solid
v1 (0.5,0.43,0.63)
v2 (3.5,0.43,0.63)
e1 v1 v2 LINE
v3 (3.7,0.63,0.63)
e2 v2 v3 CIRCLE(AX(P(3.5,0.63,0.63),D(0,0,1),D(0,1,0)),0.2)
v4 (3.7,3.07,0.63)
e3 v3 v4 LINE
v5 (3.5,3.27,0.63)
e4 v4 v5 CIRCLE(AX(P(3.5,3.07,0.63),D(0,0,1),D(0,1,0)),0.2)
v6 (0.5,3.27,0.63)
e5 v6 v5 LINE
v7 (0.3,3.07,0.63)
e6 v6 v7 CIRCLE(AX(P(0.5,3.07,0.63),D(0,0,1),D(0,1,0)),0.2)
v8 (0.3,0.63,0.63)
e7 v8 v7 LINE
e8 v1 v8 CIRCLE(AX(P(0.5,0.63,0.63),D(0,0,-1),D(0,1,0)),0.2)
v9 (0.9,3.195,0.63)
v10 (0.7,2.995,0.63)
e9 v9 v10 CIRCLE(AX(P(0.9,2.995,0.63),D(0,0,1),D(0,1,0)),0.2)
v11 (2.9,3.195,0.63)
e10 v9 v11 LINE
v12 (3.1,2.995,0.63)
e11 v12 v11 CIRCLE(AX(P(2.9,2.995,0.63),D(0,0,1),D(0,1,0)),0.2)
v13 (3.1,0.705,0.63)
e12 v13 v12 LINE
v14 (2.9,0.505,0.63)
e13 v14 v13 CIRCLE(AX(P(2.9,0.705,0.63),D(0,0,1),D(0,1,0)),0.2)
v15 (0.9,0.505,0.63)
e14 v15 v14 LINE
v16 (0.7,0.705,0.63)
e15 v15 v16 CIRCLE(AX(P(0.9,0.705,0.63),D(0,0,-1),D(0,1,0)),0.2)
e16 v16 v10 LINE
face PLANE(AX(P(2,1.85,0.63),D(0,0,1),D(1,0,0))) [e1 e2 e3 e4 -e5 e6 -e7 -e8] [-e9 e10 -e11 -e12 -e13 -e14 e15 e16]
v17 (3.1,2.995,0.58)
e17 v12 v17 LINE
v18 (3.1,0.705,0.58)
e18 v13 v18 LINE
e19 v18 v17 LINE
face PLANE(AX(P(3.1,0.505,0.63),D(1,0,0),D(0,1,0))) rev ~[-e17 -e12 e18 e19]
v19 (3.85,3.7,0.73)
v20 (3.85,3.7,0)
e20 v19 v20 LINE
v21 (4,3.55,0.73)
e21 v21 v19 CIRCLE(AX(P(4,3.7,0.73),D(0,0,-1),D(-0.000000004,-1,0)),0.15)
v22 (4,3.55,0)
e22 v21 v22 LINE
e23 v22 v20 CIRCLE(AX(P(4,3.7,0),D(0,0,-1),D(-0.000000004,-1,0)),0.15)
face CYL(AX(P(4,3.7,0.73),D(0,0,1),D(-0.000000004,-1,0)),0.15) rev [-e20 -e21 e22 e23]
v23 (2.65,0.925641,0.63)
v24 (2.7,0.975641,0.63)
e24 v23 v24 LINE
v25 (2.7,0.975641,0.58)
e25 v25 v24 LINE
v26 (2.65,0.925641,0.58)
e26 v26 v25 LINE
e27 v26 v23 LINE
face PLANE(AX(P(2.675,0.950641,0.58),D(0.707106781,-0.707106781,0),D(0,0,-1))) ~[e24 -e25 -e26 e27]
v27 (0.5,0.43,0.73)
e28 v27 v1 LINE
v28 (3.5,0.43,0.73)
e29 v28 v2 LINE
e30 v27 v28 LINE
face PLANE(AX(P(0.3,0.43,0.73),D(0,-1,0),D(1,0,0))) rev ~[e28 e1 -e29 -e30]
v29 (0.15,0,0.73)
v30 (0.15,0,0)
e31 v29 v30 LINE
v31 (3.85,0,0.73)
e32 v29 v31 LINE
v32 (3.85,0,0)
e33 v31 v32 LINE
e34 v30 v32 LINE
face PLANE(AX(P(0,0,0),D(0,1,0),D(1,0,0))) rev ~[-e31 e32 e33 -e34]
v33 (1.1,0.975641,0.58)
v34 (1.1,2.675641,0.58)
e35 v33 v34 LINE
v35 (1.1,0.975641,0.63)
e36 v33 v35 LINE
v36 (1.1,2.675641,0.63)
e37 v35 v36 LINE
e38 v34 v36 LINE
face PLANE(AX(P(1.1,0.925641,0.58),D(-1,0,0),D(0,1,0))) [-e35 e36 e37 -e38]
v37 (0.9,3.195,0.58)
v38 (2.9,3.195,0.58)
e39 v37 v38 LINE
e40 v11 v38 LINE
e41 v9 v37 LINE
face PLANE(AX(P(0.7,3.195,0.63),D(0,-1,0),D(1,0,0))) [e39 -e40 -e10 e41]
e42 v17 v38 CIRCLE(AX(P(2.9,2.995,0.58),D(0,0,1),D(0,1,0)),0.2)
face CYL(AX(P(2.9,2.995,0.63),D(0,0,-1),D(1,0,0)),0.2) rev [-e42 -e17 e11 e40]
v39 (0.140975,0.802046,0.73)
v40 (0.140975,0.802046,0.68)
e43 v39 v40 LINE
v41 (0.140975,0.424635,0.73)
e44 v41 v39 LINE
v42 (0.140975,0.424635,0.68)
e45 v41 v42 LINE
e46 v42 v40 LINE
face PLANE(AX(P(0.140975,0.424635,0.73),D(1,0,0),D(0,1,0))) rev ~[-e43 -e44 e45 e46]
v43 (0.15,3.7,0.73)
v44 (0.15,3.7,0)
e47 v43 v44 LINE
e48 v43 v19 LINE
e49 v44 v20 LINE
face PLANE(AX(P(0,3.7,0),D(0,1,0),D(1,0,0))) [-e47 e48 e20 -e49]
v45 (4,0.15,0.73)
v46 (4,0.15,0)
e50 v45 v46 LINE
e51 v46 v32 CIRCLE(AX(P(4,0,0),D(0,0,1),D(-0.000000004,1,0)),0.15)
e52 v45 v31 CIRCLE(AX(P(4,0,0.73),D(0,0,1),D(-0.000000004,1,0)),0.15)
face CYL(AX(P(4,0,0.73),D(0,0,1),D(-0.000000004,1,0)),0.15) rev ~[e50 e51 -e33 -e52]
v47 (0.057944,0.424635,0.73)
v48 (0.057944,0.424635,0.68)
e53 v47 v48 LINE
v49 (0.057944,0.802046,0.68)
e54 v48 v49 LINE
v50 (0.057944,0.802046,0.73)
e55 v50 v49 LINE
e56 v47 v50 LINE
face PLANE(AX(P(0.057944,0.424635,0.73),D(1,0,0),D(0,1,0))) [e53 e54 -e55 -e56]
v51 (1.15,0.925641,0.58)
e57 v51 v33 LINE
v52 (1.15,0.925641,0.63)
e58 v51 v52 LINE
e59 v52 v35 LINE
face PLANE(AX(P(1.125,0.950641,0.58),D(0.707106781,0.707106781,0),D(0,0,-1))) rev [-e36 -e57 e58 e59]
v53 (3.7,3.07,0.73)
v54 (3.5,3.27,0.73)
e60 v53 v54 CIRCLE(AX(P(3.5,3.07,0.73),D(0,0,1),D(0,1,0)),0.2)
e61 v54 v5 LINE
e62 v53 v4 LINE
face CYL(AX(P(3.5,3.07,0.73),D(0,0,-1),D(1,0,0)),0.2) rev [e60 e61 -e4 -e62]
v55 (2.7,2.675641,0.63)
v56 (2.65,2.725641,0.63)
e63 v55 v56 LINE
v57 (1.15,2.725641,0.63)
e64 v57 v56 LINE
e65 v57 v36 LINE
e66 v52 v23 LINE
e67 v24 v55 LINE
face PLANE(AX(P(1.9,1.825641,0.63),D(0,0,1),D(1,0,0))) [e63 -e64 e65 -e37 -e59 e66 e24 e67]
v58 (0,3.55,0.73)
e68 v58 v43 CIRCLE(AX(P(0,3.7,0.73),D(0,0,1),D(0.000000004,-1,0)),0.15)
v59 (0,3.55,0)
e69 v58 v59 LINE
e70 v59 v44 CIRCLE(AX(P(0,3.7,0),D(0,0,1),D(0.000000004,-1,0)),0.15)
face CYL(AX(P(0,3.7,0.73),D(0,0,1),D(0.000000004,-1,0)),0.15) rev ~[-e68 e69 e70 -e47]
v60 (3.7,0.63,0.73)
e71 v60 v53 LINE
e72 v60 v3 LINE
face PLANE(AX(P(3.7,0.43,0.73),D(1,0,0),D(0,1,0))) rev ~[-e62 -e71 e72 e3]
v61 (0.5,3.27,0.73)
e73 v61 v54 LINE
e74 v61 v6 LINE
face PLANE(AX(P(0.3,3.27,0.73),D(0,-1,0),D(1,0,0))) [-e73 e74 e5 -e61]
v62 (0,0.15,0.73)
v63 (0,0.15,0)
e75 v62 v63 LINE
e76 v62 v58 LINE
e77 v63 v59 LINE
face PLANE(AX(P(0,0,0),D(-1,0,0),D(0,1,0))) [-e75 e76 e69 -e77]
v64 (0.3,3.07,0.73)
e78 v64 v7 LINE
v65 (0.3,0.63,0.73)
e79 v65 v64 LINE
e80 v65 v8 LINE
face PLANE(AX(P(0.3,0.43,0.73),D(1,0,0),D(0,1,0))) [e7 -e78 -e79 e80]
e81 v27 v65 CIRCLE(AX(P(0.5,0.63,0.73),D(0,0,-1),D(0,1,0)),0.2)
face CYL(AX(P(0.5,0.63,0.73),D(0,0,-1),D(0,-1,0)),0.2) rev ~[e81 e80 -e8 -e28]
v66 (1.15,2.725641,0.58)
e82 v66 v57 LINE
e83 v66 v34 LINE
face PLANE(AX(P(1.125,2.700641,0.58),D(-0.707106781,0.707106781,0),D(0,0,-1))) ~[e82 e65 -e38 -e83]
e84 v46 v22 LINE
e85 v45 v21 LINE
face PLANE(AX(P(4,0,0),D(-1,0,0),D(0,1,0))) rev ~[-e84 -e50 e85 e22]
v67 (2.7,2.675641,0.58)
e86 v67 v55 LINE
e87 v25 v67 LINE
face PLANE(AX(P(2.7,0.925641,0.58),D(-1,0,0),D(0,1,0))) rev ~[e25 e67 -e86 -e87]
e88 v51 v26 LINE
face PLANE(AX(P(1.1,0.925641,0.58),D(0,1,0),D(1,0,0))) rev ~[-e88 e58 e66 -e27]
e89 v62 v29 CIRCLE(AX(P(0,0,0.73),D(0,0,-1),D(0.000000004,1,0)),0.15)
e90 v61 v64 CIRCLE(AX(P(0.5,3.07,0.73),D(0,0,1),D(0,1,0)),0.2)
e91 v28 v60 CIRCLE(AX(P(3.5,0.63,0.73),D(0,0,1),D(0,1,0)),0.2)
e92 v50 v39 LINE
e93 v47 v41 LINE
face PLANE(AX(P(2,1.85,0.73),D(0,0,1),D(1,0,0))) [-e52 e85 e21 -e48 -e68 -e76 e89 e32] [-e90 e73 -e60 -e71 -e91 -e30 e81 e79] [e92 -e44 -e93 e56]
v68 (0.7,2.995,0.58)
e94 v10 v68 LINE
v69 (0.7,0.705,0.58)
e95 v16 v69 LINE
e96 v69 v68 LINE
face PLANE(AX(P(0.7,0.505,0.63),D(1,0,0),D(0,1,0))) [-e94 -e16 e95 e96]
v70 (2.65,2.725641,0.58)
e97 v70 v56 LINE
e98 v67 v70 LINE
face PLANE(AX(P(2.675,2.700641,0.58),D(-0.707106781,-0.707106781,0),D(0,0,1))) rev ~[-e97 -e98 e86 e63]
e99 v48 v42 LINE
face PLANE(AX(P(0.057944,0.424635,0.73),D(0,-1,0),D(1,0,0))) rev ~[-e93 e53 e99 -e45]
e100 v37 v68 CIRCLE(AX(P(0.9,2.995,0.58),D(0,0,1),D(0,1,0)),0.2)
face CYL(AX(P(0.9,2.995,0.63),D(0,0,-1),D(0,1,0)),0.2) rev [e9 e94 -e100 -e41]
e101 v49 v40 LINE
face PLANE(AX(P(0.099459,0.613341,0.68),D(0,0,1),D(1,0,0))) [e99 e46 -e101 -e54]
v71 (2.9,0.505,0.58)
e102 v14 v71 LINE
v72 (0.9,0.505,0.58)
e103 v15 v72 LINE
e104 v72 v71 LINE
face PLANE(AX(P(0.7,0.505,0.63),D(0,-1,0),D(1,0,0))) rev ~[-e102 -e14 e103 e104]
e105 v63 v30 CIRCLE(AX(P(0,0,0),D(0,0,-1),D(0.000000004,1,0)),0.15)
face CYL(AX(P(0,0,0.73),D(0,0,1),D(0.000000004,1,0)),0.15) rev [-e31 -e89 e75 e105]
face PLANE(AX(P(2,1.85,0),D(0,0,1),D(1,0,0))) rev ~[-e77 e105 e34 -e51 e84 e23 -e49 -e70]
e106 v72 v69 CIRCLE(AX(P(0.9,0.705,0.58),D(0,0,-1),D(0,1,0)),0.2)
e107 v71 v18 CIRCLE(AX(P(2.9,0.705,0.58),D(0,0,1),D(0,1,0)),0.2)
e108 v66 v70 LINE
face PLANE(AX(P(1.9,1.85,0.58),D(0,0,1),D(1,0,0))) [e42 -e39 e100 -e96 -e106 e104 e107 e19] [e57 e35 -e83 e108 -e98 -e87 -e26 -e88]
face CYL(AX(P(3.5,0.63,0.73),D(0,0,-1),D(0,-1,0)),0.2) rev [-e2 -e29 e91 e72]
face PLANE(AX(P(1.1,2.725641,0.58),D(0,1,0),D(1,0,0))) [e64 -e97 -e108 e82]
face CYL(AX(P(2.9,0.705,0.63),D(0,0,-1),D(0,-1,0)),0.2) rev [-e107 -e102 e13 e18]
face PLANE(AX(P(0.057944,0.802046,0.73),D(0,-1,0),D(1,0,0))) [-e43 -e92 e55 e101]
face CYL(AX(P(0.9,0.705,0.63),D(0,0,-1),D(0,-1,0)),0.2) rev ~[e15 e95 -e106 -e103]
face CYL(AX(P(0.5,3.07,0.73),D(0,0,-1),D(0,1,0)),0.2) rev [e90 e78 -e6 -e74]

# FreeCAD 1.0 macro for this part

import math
import FreeCAD as App
import Part
import Sketcher
Q = App.Units.Quantity


def edges_at(feature, points):
    """Names of the edges that pass closest to the given points."""
    edges = feature.Shape.Edges
    near = lambda p: min(range(len(edges)), key=lambda i: edges[i].distToShape(Part.Vertex(*p))[0])
    return sorted({f"Edge{near(p) + 1}" for p in points})

doc = App.newDocument("Part")
body = doc.addObject("PartDesign::Body", "Body")

# Sketch on XY plane
sketch1 = body.newObject("Sketcher::SketchObject", "Sketch")
sketch1.AttachmentSupport = (doc.getObject("XY_Plane"), [""])
sketch1.MapMode = "FlatFace"
sketch1.addGeometry([
    Part.LineSegment(App.Vector(0, 3.7, 0), App.Vector(0, 0, 0)),
    Part.LineSegment(App.Vector(0, 0, 0), App.Vector(4, 0, 0)),
    Part.LineSegment(App.Vector(4, 0, 0), App.Vector(4, 3.7, 0)),
    Part.LineSegment(App.Vector(4, 3.7, 0), App.Vector(0, 3.7, 0)),
], False)
sketch1.addConstraint([
    Sketcher.Constraint("Coincident", 0, 2, 1, 1),
    Sketcher.Constraint("Coincident", 1, 2, 2, 1),
    Sketcher.Constraint("Coincident", 2, 2, 3, 1),
    Sketcher.Constraint("Coincident", 3, 2, 0, 1),
    Sketcher.Constraint("Vertical", 0),
    Sketcher.Constraint("Horizontal", 1),
    Sketcher.Constraint("Vertical", 2),
    Sketcher.Constraint("Horizontal", 3),
    Sketcher.Constraint("Coincident", 0, 2, -1, 1),
    Sketcher.Constraint("DistanceX", 1, 1, 1, 2, Q("4 mm")),
    Sketcher.Constraint("DistanceY", 0, 2, 0, 1, Q("3.7 mm")),
])
pad1 = body.newObject("PartDesign::Pad", "Pad")
pad1.Profile = sketch1
pad1.Length = 0.73

# Sketch on XY plane
sketch2 = body.newObject("Sketcher::SketchObject", "Sketch001")
sketch2.AttachmentSupport = (doc.getObject("XY_Plane"), [""])
sketch2.MapMode = "FlatFace"
sketch2.AttachmentOffset = App.Placement(App.Vector(0, 0, 0.73), App.Rotation())
sketch2.addGeometry([
    Part.LineSegment(App.Vector(0.15, 3.7, 0), App.Vector(0, 3.7, 0)),
    Part.LineSegment(App.Vector(0, 3.7, 0), App.Vector(0, 3.55, 0)),
    Part.ArcOfCircle(Part.Circle(App.Vector(0, 3.7, 0), App.Vector(0, 0, 1), 0.15), math.radians(-90), math.radians(0)),
], False)
sketch2.addConstraint([
    Sketcher.Constraint("Coincident", 0, 2, 1, 1),
    Sketcher.Constraint("Coincident", 1, 2, 2, 1),
    Sketcher.Constraint("Coincident", 2, 2, 0, 1),
    Sketcher.Constraint("Horizontal", 0),
    Sketcher.Constraint("Vertical", 1),
    Sketcher.Constraint("Coincident", 0, 2, 2, 3),
    Sketcher.Constraint("PointOnObject", 2, 3, -2),
    Sketcher.Constraint("Radius", 2, Q("0.15 mm")),
    Sketcher.Constraint("DistanceY", -1, 1, 2, 3, Q("3.7 mm")),
])
pocket1 = body.newObject("PartDesign::Pocket", "Pocket")
pocket1.Profile = sketch2
pocket1.Length = 0.73
doc.recompute()

datumplane = body.newObject("PartDesign::Plane", "DatumPlane")
datumplane.AttachmentSupport = (doc.getObject("XZ_Plane"), [""])
datumplane.MapMode = "FlatFace"
datumplane.AttachmentOffset = App.Placement(App.Vector(0, 0, -1.85), App.Rotation())
mirrored = body.newObject("PartDesign::Mirrored", "Mirrored")
mirrored.Originals = [pocket1]
mirrored.MirrorPlane = (datumplane, [""])
body.Tip = mirrored
doc.recompute()

datumplane2 = body.newObject("PartDesign::Plane", "DatumPlane001")
datumplane2.AttachmentSupport = (doc.getObject("YZ_Plane"), [""])
datumplane2.MapMode = "FlatFace"
datumplane2.AttachmentOffset = App.Placement(App.Vector(0, 0, 2), App.Rotation())
mirrored2 = body.newObject("PartDesign::Mirrored", "Mirrored001")
mirrored2.Originals = [pocket1]
mirrored2.MirrorPlane = (datumplane2, [""])
body.Tip = mirrored2

# Sketch on XY plane
sketch3 = body.newObject("Sketcher::SketchObject", "Sketch002")
sketch3.AttachmentSupport = (doc.getObject("XY_Plane"), [""])
sketch3.MapMode = "FlatFace"
sketch3.AttachmentOffset = App.Placement(App.Vector(0, 0, 0.73), App.Rotation())
sketch3.addGeometry([
    Part.LineSegment(App.Vector(3.85, 0, 0), App.Vector(4, 0, 0)),
    Part.LineSegment(App.Vector(4, 0, 0), App.Vector(4, 0.15, 0)),
    Part.ArcOfCircle(Part.Circle(App.Vector(4, 0, 0), App.Vector(0, 0, 1), 0.15), math.radians(90), math.radians(180)),
], False)
sketch3.addConstraint([
    Sketcher.Constraint("Coincident", 0, 2, 1, 1),
    Sketcher.Constraint("Coincident", 1, 2, 2, 1),
    Sketcher.Constraint("Coincident", 2, 2, 0, 1),
    Sketcher.Constraint("Horizontal", 0),
    Sketcher.Constraint("Vertical", 1),
    Sketcher.Constraint("Coincident", 0, 2, 2, 3),
    Sketcher.Constraint("PointOnObject", 2, 3, -1),
    Sketcher.Constraint("Radius", 2, Q("0.15 mm")),
    Sketcher.Constraint("DistanceX", -1, 1, 2, 3, Q("4 mm")),
])
pocket2 = body.newObject("PartDesign::Pocket", "Pocket001")
pocket2.Profile = sketch3
pocket2.Length = 0.73

# Sketch on XY plane
sketch4 = body.newObject("Sketcher::SketchObject", "Sketch003")
sketch4.AttachmentSupport = (doc.getObject("XY_Plane"), [""])
sketch4.MapMode = "FlatFace"
sketch4.AttachmentOffset = App.Placement(App.Vector(0, 0, 0.73), App.Rotation())
sketch4.addGeometry([
    Part.LineSegment(App.Vector(0.3, 3.3, 0), App.Vector(0.3, 0.4, 0)),
    Part.LineSegment(App.Vector(0.3, 0.4, 0), App.Vector(3.7, 0.4, 0)),
    Part.LineSegment(App.Vector(3.7, 0.4, 0), App.Vector(3.7, 3.3, 0)),
    Part.LineSegment(App.Vector(3.7, 3.3, 0), App.Vector(0.3, 3.3, 0)),
], False)
sketch4.addConstraint([
    Sketcher.Constraint("Coincident", 0, 2, 1, 1),
    Sketcher.Constraint("Coincident", 1, 2, 2, 1),
    Sketcher.Constraint("Coincident", 2, 2, 3, 1),
    Sketcher.Constraint("Coincident", 3, 2, 0, 1),
    Sketcher.Constraint("Vertical", 0),
    Sketcher.Constraint("Horizontal", 1),
    Sketcher.Constraint("Vertical", 2),
    Sketcher.Constraint("Horizontal", 3),
    Sketcher.Constraint("DistanceX", 1, 1, 1, 2, Q("3.4 mm")),
    Sketcher.Constraint("DistanceY", 0, 2, 0, 1, Q("2.84 mm")),
    Sketcher.Constraint("DistanceX", -1, 1, 0, 2, Q("0.3 mm")),
    Sketcher.Constraint("DistanceY", -1, 1, 0, 2, Q("0.43 mm")),
])
pocket3 = body.newObject("PartDesign::Pocket", "Pocket002")
pocket3.Profile = sketch4
pocket3.Length = 0.1
doc.recompute()

fillet = body.newObject("PartDesign::Fillet", "Fillet")
fillet.Base = (pocket3, edges_at(pocket3, [
    (0.3, 0.43, 0.68),
    (0.3, 3.27, 0.68),
    (3.7, 3.27, 0.68),
    (3.7, 0.43, 0.68),
]))
fillet.Radius = 0.2

# Sketch on XY plane
sketch5 = body.newObject("Sketcher::SketchObject", "Sketch004")
sketch5.AttachmentSupport = (doc.getObject("XY_Plane"), [""])
sketch5.MapMode = "FlatFace"
sketch5.AttachmentOffset = App.Placement(App.Vector(0, 0, 0.73), App.Rotation())
sketch5.addGeometry([
    Part.LineSegment(App.Vector(0.06, 0.8, 0), App.Vector(0.06, 0.42, 0)),
    Part.LineSegment(App.Vector(0.06, 0.42, 0), App.Vector(0.14, 0.42, 0)),
    Part.LineSegment(App.Vector(0.14, 0.42, 0), App.Vector(0.14, 0.8, 0)),
    Part.LineSegment(App.Vector(0.14, 0.8, 0), App.Vector(0.06, 0.8, 0)),
], False)
sketch5.addConstraint([
    Sketcher.Constraint("Coincident", 0, 2, 1, 1),
    Sketcher.Constraint("Coincident", 1, 2, 2, 1),
    Sketcher.Constraint("Coincident", 2, 2, 3, 1),
    Sketcher.Constraint("Coincident", 3, 2, 0, 1),
    Sketcher.Constraint("Vertical", 0),
    Sketcher.Constraint("Horizontal", 1),
    Sketcher.Constraint("Vertical", 2),
    Sketcher.Constraint("Horizontal", 3),
    Sketcher.Constraint("DistanceX", 1, 1, 1, 2, Q("0.08303 mm")),
    Sketcher.Constraint("DistanceY", 0, 2, 0, 1, Q("0.377411 mm")),
    Sketcher.Constraint("DistanceX", -1, 1, 0, 2, Q("0.057944 mm")),
    Sketcher.Constraint("DistanceY", -1, 1, 0, 2, Q("0.424635 mm")),
])
pocket4 = body.newObject("PartDesign::Pocket", "Pocket003")
pocket4.Profile = sketch5
pocket4.Length = 0.05

# Sketch on XY plane
sketch6 = body.newObject("Sketcher::SketchObject", "Sketch005")
sketch6.AttachmentSupport = (doc.getObject("XY_Plane"), [""])
sketch6.MapMode = "FlatFace"
sketch6.AttachmentOffset = App.Placement(App.Vector(0, 0, 0.63), App.Rotation())
sketch6.addGeometry([
    Part.LineSegment(App.Vector(0.7, 3.2, 0), App.Vector(0.7, 0.5, 0)),
    Part.LineSegment(App.Vector(0.7, 0.5, 0), App.Vector(3.1, 0.5, 0)),
    Part.LineSegment(App.Vector(3.1, 0.5, 0), App.Vector(3.1, 3.2, 0)),
    Part.LineSegment(App.Vector(3.1, 3.2, 0), App.Vector(0.7, 3.2, 0)),
], False)
sketch6.addConstraint([
    Sketcher.Constraint("Coincident", 0, 2, 1, 1),
    Sketcher.Constraint("Coincident", 1, 2, 2, 1),
    Sketcher.Constraint("Coincident", 2, 2, 3, 1),
    Sketcher.Constraint("Coincident", 3, 2, 0, 1),
    Sketcher.Constraint("Vertical", 0),
    Sketcher.Constraint("Horizontal", 1),
    Sketcher.Constraint("Vertical", 2),
    Sketcher.Constraint("Horizontal", 3),
    Sketcher.Constraint("DistanceX", 1, 1, 1, 2, Q("2.4 mm")),
    Sketcher.Constraint("DistanceY", 0, 2, 0, 1, Q("2.69 mm")),
    Sketcher.Constraint("DistanceX", -1, 1, 0, 2, Q("0.7 mm")),
    Sketcher.Constraint("DistanceY", -1, 1, 0, 2, Q("0.505 mm")),
])
pocket5 = body.newObject("PartDesign::Pocket", "Pocket004")
pocket5.Profile = sketch6
pocket5.Length = 0.05
doc.recompute()

fillet2 = body.newObject("PartDesign::Fillet", "Fillet001")
fillet2.Base = (pocket5, edges_at(pocket5, [
    (0.7, 0.505, 0.605),
    (0.7, 3.195, 0.605),
    (3.1, 3.195, 0.605),
    (3.1, 0.505, 0.605),
]))
fillet2.Radius = 0.2

# Sketch on XY plane
sketch7 = body.newObject("Sketcher::SketchObject", "Sketch006")
sketch7.AttachmentSupport = (doc.getObject("XY_Plane"), [""])
sketch7.MapMode = "FlatFace"
sketch7.AttachmentOffset = App.Placement(App.Vector(0, 0, 0.58), App.Rotation())
sketch7.addGeometry([
    Part.LineSegment(App.Vector(1.1, 2.7, 0), App.Vector(1.1, 0.9, 0)),
    Part.LineSegment(App.Vector(1.1, 0.9, 0), App.Vector(2.7, 0.9, 0)),
    Part.LineSegment(App.Vector(2.7, 0.9, 0), App.Vector(2.7, 2.7, 0)),
    Part.LineSegment(App.Vector(2.7, 2.7, 0), App.Vector(1.1, 2.7, 0)),
], False)
sketch7.addConstraint([
    Sketcher.Constraint("Coincident", 0, 2, 1, 1),
    Sketcher.Constraint("Coincident", 1, 2, 2, 1),
    Sketcher.Constraint("Coincident", 2, 2, 3, 1),
    Sketcher.Constraint("Coincident", 3, 2, 0, 1),
    Sketcher.Constraint("Vertical", 0),
    Sketcher.Constraint("Horizontal", 1),
    Sketcher.Constraint("Vertical", 2),
    Sketcher.Constraint("Horizontal", 3),
    Sketcher.Constraint("DistanceX", 1, 1, 1, 2, Q("1.6 mm")),
    Sketcher.Constraint("DistanceY", 0, 2, 0, 1, Q("1.8 mm")),
    Sketcher.Constraint("DistanceX", -1, 1, 0, 2, Q("1.1 mm")),
    Sketcher.Constraint("DistanceY", -1, 1, 0, 2, Q("0.925641 mm")),
])
pad2 = body.newObject("PartDesign::Pad", "Pad001")
pad2.Profile = sketch7
pad2.Length = 0.05
doc.recompute()

chamfer = body.newObject("PartDesign::Chamfer", "Chamfer")
chamfer.Base = (pad2, edges_at(pad2, [
    (1.1, 2.726, 0.605),
    (1.1, 0.926, 0.605),
    (2.7, 0.926, 0.605),
    (2.7, 2.726, 0.605),
]))
chamfer.Size = 0.05

doc.recompute()
